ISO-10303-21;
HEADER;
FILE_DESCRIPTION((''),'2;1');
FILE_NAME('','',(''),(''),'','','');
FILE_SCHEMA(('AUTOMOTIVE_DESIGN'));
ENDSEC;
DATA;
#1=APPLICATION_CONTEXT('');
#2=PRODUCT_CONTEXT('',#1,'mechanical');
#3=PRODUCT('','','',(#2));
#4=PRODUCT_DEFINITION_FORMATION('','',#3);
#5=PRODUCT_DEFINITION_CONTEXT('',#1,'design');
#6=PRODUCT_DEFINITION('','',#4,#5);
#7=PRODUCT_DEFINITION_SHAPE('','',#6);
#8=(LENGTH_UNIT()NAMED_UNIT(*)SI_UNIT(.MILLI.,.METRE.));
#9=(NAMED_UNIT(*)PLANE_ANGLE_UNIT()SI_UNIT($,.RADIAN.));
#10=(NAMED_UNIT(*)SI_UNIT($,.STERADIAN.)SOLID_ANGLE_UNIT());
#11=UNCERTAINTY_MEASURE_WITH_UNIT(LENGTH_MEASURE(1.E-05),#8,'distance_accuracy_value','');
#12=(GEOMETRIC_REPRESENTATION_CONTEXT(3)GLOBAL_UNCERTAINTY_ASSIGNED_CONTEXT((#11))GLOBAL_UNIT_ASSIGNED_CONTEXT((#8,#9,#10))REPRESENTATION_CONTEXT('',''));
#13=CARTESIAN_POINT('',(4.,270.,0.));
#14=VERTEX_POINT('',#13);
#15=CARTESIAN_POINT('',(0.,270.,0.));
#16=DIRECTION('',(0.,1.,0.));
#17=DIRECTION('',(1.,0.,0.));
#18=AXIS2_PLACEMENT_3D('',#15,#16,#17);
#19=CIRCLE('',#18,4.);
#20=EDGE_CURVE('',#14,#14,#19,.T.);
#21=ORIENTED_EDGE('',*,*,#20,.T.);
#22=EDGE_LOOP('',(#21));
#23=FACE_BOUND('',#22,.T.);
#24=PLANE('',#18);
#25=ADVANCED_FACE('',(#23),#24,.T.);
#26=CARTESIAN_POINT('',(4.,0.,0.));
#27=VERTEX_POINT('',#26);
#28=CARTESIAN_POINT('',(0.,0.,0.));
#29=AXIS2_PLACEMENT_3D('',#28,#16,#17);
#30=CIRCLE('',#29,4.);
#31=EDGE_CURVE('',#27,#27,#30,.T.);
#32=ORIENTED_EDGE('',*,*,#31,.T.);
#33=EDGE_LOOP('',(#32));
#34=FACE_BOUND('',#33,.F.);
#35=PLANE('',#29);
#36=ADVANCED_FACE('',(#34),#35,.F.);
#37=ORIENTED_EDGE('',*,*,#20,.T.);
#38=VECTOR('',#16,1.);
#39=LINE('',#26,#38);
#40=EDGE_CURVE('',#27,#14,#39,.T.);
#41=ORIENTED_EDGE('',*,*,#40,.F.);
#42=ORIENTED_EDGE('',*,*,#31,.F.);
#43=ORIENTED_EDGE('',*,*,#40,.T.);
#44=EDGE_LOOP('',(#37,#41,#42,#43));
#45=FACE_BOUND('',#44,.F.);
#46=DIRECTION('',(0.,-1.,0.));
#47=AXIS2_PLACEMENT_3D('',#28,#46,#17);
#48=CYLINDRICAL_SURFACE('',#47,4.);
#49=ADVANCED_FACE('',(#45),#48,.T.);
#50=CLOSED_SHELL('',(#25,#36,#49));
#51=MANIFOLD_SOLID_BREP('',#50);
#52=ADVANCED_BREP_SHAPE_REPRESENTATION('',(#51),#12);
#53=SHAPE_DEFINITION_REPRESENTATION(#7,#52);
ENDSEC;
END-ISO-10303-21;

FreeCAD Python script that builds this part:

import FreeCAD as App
import Part
import Sketcher
Q = App.Units.Quantity

doc = App.newDocument("Part")
body = doc.addObject("PartDesign::Body", "Body")

# Sketch on XZ plane
sketch1 = body.newObject("Sketcher::SketchObject", "Sketch")
sketch1.AttachmentSupport = (doc.getObject("XZ_Plane"), [""])
sketch1.MapMode = "FlatFace"
sketch1.addGeometry(Part.Circle(App.Vector(0, 0, 0), App.Vector(0, 0, 1), 4), False)
sketch1.addConstraint(Sketcher.Constraint("Coincident", 0, 3, -1, 1))
sketch1.addConstraint(Sketcher.Constraint("Diameter", 0, Q("8 mm")))
pad1 = body.newObject("PartDesign::Pad", "Pad")
pad1.Profile = sketch1
pad1.Length = 270
pad1.Reversed = True

doc.recompute()
